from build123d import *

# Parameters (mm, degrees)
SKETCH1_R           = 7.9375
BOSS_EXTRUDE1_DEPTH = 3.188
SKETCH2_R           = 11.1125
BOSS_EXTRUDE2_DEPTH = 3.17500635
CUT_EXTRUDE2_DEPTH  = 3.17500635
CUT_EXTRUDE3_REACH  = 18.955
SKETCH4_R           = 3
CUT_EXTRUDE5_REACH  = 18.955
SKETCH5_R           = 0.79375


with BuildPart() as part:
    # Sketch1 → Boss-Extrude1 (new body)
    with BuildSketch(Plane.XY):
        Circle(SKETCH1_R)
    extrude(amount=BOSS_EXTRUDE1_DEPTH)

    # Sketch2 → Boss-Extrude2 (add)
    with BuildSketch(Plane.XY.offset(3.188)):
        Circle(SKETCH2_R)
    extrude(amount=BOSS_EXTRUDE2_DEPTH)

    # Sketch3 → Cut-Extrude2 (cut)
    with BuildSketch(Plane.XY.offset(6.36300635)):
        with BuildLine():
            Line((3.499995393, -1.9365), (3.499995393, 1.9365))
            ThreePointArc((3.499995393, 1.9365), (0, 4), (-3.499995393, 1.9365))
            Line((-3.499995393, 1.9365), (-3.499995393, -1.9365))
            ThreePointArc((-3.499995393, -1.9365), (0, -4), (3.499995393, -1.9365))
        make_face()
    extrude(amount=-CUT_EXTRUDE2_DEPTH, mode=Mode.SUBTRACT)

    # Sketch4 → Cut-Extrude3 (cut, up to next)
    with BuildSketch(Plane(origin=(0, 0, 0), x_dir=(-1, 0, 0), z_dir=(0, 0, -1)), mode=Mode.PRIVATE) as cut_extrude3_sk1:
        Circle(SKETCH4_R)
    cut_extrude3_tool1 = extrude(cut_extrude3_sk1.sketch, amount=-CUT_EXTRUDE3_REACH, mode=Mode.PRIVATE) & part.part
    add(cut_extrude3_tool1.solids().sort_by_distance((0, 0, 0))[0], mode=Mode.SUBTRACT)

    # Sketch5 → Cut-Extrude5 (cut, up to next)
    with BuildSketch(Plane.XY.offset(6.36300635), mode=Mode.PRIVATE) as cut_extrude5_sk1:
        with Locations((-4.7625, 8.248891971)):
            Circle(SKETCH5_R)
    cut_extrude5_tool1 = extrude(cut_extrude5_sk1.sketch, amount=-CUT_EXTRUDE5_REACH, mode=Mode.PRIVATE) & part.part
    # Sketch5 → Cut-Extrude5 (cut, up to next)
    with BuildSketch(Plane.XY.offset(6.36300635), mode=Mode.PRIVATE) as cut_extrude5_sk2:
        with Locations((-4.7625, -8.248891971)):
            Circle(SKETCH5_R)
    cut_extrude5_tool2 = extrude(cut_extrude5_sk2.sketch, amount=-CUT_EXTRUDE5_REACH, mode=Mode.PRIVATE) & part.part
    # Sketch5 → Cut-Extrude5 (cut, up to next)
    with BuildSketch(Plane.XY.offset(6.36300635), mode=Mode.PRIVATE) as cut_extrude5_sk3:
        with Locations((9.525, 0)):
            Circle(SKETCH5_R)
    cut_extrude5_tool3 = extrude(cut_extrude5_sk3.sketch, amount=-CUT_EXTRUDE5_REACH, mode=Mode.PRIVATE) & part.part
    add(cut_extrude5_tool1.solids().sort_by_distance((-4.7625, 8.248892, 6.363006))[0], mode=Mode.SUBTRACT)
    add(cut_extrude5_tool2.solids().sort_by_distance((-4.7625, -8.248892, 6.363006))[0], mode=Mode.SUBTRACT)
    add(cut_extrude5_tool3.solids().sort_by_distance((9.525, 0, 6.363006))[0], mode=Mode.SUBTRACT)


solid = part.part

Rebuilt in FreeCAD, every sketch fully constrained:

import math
import FreeCAD as App
import Part
import Sketcher

V = App.Vector
Q = App.Units.Quantity

doc = App.newDocument("Part")
params = doc.addObject("Spreadsheet::Sheet", "Params")
for row, (alias, value) in enumerate([
    ("sketch1_diameter", "0.625 in"),
    ("pad1_length", "3.188 mm"),
    ("sketch2_diameter", "0.875 in"),
    ("pad2_length", "3.175006 mm"),
    ("pocket1_length", "3.175006 mm"),
    ("sketch5_diameter", "0.0625 in"),
    ("sketch6_diameter", "0.0625 in"),
    ("sketch7_diameter", "0.0625 in"),
], start=1):
    params.set(f"A{row}", alias)
    params.set(f"B{row}", "=" + value)
    params.setAlias(f"B{row}", alias)

body = doc.addObject("PartDesign::Body", "Body")

# Sketch on XY plane
sketch1 = body.newObject("Sketcher::SketchObject", "Sketch")
sketch1.AttachmentSupport = (doc.getObject("XY_Plane"), [""])
sketch1.MapMode = "FlatFace"
sketch1.addGeometry(Part.Circle(V(0, 0, 0), V(0, 0, 1), 8), False)
sketch1.addConstraint(Sketcher.Constraint("Coincident", 0, 3, -1, 1))
sketch1.addConstraint(Sketcher.Constraint("Diameter", 0, Q("0.625 in")))
sketch1.setExpression("Constraints[1]", "Params.sketch1_diameter")
pad1 = body.newObject("PartDesign::Pad", "Pad")
pad1.Profile = sketch1
pad1.setExpression("Length", "Params.pad1_length")

# Sketch on XY plane
sketch2 = body.newObject("Sketcher::SketchObject", "Sketch001")
sketch2.AttachmentSupport = (doc.getObject("XY_Plane"), [""])
sketch2.MapMode = "FlatFace"
sketch2.AttachmentOffset = App.Placement(V(0, 0, 3.188), App.Rotation())
sketch2.addGeometry(Part.Circle(V(0, 0, 0), V(0, 0, 1), 11), False)
sketch2.addConstraint(Sketcher.Constraint("Coincident", 0, 3, -1, 1))
sketch2.addConstraint(Sketcher.Constraint("Diameter", 0, Q("0.875 in")))
sketch2.setExpression("Constraints[1]", "Params.sketch2_diameter")
pad2 = body.newObject("PartDesign::Pad", "Pad001")
pad2.Profile = sketch2
pad2.setExpression("Length", "Params.pad2_length")

# Sketch on XY plane
sketch3 = body.newObject("Sketcher::SketchObject", "Sketch002")
sketch3.AttachmentSupport = (doc.getObject("XY_Plane"), [""])
sketch3.MapMode = "FlatFace"
sketch3.AttachmentOffset = App.Placement(V(0, 0, 6.363006), App.Rotation())
sketch3.addGeometry(Part.LineSegment(V(3.5, -1.9, 0), V(3.5, 1.9, 0)), False)
sketch3.addGeometry(Part.ArcOfCircle(Part.Circle(V(0, 0, 0), V(0, 0, 1), 4), math.radians(29), math.radians(151)), False)
sketch3.addGeometry(Part.LineSegment(V(-3.5, 1.9, 0), V(-3.5, -1.9, 0)), False)
sketch3.addGeometry(Part.ArcOfCircle(Part.Circle(V(0, 0, 0), V(0, 0, 1), 4), math.radians(-151), math.radians(-29)), False)
sketch3.addConstraint(Sketcher.Constraint("Coincident", 0, 2, 1, 1))
sketch3.addConstraint(Sketcher.Constraint("Coincident", 1, 2, 2, 1))
sketch3.addConstraint(Sketcher.Constraint("Coincident", 2, 2, 3, 1))
sketch3.addConstraint(Sketcher.Constraint("Coincident", 3, 2, 0, 1))
sketch3.addConstraint(Sketcher.Constraint("Vertical", 0))
sketch3.addConstraint(Sketcher.Constraint("Vertical", 2))
sketch3.addConstraint(Sketcher.Constraint("Coincident", 1, 3, -1, 1))
sketch3.addConstraint(Sketcher.Constraint("Coincident", 3, 3, -1, 1))
sketch3.addConstraint(Sketcher.Constraint("Equal", 1, 3))
sketch3.addConstraint(Sketcher.Constraint("Horizontal", 0, 2, 1, 2))
sketch3.addConstraint(Sketcher.Constraint("Radius", 1, Q("4 mm")))
sketch3.addConstraint(Sketcher.Constraint("DistanceY", 0, 1, 0, 2, Q("3.873 mm")))
pocket1 = body.newObject("PartDesign::Pocket", "Pocket")
pocket1.Profile = sketch3
pocket1.setExpression("Length", "Params.pocket1_length")

# Sketch on XY plane
sketch4 = body.newObject("Sketcher::SketchObject", "Sketch003")
sketch4.AttachmentSupport = (doc.getObject("XY_Plane"), [""])
sketch4.MapMode = "FlatFace"
sketch4.addGeometry(Part.Circle(V(0, 0, 0), V(0, 0, 1), 3), False)
sketch4.addConstraint(Sketcher.Constraint("Coincident", 0, 3, -1, 1))
sketch4.addConstraint(Sketcher.Constraint("Diameter", 0, Q("6 mm")))
pocket2 = body.newObject("PartDesign::Pocket", "Pocket001")
pocket2.Profile = sketch4
pocket2.Type = "UpToFirst"
pocket2.Reversed = True

# Sketch on XY plane
sketch5 = body.newObject("Sketcher::SketchObject", "Sketch004")
sketch5.AttachmentSupport = (doc.getObject("XY_Plane"), [""])
sketch5.MapMode = "FlatFace"
sketch5.AttachmentOffset = App.Placement(V(0, 0, 6.363006), App.Rotation())
sketch5.addGeometry(Part.Circle(V(-4.8, 8.2, 0), V(0, 0, 1), 0.8), False)
sketch5.addConstraint(Sketcher.Constraint("Diameter", 0, Q("0.0625 in")))
sketch5.addConstraint(Sketcher.Constraint("DistanceX", 0, 3, -1, 1, Q("0.1875 in")))
sketch5.addConstraint(Sketcher.Constraint("DistanceY", -1, 1, 0, 3, Q("8.248892 mm")))
sketch5.setExpression("Constraints[0]", "Params.sketch5_diameter")
pocket3 = body.newObject("PartDesign::Pocket", "Pocket002")
pocket3.Profile = sketch5
pocket3.Type = "UpToFirst"

# Sketch on XY plane
sketch6 = body.newObject("Sketcher::SketchObject", "Sketch005")
sketch6.AttachmentSupport = (doc.getObject("XY_Plane"), [""])
sketch6.MapMode = "FlatFace"
sketch6.AttachmentOffset = App.Placement(V(0, 0, 6.363006), App.Rotation())
sketch6.addGeometry(Part.Circle(V(-4.8, -8.2, 0), V(0, 0, 1), 0.8), False)
sketch6.addConstraint(Sketcher.Constraint("Diameter", 0, Q("0.0625 in")))
sketch6.addConstraint(Sketcher.Constraint("DistanceX", 0, 3, -1, 1, Q("0.1875 in")))
sketch6.addConstraint(Sketcher.Constraint("DistanceY", 0, 3, -1, 1, Q("8.248892 mm")))
sketch6.setExpression("Constraints[0]", "Params.sketch6_diameter")
pocket4 = body.newObject("PartDesign::Pocket", "Pocket003")
pocket4.Profile = sketch6
pocket4.Type = "UpToFirst"

# Sketch on XY plane
sketch7 = body.newObject("Sketcher::SketchObject", "Sketch006")
sketch7.AttachmentSupport = (doc.getObject("XY_Plane"), [""])
sketch7.MapMode = "FlatFace"
sketch7.AttachmentOffset = App.Placement(V(0, 0, 6.363006), App.Rotation())
sketch7.addGeometry(Part.Circle(V(9.5, 0, 0), V(0, 0, 1), 0.8), False)
sketch7.addConstraint(Sketcher.Constraint("PointOnObject", 0, 3, -1))
sketch7.addConstraint(Sketcher.Constraint("Diameter", 0, Q("0.0625 in")))
sketch7.addConstraint(Sketcher.Constraint("DistanceX", -1, 1, 0, 3, Q("0.375 in")))
sketch7.setExpression("Constraints[1]", "Params.sketch7_diameter")
pocket5 = body.newObject("PartDesign::Pocket", "Pocket004")
pocket5.Profile = sketch7
pocket5.Type = "UpToFirst"

doc.recompute()
